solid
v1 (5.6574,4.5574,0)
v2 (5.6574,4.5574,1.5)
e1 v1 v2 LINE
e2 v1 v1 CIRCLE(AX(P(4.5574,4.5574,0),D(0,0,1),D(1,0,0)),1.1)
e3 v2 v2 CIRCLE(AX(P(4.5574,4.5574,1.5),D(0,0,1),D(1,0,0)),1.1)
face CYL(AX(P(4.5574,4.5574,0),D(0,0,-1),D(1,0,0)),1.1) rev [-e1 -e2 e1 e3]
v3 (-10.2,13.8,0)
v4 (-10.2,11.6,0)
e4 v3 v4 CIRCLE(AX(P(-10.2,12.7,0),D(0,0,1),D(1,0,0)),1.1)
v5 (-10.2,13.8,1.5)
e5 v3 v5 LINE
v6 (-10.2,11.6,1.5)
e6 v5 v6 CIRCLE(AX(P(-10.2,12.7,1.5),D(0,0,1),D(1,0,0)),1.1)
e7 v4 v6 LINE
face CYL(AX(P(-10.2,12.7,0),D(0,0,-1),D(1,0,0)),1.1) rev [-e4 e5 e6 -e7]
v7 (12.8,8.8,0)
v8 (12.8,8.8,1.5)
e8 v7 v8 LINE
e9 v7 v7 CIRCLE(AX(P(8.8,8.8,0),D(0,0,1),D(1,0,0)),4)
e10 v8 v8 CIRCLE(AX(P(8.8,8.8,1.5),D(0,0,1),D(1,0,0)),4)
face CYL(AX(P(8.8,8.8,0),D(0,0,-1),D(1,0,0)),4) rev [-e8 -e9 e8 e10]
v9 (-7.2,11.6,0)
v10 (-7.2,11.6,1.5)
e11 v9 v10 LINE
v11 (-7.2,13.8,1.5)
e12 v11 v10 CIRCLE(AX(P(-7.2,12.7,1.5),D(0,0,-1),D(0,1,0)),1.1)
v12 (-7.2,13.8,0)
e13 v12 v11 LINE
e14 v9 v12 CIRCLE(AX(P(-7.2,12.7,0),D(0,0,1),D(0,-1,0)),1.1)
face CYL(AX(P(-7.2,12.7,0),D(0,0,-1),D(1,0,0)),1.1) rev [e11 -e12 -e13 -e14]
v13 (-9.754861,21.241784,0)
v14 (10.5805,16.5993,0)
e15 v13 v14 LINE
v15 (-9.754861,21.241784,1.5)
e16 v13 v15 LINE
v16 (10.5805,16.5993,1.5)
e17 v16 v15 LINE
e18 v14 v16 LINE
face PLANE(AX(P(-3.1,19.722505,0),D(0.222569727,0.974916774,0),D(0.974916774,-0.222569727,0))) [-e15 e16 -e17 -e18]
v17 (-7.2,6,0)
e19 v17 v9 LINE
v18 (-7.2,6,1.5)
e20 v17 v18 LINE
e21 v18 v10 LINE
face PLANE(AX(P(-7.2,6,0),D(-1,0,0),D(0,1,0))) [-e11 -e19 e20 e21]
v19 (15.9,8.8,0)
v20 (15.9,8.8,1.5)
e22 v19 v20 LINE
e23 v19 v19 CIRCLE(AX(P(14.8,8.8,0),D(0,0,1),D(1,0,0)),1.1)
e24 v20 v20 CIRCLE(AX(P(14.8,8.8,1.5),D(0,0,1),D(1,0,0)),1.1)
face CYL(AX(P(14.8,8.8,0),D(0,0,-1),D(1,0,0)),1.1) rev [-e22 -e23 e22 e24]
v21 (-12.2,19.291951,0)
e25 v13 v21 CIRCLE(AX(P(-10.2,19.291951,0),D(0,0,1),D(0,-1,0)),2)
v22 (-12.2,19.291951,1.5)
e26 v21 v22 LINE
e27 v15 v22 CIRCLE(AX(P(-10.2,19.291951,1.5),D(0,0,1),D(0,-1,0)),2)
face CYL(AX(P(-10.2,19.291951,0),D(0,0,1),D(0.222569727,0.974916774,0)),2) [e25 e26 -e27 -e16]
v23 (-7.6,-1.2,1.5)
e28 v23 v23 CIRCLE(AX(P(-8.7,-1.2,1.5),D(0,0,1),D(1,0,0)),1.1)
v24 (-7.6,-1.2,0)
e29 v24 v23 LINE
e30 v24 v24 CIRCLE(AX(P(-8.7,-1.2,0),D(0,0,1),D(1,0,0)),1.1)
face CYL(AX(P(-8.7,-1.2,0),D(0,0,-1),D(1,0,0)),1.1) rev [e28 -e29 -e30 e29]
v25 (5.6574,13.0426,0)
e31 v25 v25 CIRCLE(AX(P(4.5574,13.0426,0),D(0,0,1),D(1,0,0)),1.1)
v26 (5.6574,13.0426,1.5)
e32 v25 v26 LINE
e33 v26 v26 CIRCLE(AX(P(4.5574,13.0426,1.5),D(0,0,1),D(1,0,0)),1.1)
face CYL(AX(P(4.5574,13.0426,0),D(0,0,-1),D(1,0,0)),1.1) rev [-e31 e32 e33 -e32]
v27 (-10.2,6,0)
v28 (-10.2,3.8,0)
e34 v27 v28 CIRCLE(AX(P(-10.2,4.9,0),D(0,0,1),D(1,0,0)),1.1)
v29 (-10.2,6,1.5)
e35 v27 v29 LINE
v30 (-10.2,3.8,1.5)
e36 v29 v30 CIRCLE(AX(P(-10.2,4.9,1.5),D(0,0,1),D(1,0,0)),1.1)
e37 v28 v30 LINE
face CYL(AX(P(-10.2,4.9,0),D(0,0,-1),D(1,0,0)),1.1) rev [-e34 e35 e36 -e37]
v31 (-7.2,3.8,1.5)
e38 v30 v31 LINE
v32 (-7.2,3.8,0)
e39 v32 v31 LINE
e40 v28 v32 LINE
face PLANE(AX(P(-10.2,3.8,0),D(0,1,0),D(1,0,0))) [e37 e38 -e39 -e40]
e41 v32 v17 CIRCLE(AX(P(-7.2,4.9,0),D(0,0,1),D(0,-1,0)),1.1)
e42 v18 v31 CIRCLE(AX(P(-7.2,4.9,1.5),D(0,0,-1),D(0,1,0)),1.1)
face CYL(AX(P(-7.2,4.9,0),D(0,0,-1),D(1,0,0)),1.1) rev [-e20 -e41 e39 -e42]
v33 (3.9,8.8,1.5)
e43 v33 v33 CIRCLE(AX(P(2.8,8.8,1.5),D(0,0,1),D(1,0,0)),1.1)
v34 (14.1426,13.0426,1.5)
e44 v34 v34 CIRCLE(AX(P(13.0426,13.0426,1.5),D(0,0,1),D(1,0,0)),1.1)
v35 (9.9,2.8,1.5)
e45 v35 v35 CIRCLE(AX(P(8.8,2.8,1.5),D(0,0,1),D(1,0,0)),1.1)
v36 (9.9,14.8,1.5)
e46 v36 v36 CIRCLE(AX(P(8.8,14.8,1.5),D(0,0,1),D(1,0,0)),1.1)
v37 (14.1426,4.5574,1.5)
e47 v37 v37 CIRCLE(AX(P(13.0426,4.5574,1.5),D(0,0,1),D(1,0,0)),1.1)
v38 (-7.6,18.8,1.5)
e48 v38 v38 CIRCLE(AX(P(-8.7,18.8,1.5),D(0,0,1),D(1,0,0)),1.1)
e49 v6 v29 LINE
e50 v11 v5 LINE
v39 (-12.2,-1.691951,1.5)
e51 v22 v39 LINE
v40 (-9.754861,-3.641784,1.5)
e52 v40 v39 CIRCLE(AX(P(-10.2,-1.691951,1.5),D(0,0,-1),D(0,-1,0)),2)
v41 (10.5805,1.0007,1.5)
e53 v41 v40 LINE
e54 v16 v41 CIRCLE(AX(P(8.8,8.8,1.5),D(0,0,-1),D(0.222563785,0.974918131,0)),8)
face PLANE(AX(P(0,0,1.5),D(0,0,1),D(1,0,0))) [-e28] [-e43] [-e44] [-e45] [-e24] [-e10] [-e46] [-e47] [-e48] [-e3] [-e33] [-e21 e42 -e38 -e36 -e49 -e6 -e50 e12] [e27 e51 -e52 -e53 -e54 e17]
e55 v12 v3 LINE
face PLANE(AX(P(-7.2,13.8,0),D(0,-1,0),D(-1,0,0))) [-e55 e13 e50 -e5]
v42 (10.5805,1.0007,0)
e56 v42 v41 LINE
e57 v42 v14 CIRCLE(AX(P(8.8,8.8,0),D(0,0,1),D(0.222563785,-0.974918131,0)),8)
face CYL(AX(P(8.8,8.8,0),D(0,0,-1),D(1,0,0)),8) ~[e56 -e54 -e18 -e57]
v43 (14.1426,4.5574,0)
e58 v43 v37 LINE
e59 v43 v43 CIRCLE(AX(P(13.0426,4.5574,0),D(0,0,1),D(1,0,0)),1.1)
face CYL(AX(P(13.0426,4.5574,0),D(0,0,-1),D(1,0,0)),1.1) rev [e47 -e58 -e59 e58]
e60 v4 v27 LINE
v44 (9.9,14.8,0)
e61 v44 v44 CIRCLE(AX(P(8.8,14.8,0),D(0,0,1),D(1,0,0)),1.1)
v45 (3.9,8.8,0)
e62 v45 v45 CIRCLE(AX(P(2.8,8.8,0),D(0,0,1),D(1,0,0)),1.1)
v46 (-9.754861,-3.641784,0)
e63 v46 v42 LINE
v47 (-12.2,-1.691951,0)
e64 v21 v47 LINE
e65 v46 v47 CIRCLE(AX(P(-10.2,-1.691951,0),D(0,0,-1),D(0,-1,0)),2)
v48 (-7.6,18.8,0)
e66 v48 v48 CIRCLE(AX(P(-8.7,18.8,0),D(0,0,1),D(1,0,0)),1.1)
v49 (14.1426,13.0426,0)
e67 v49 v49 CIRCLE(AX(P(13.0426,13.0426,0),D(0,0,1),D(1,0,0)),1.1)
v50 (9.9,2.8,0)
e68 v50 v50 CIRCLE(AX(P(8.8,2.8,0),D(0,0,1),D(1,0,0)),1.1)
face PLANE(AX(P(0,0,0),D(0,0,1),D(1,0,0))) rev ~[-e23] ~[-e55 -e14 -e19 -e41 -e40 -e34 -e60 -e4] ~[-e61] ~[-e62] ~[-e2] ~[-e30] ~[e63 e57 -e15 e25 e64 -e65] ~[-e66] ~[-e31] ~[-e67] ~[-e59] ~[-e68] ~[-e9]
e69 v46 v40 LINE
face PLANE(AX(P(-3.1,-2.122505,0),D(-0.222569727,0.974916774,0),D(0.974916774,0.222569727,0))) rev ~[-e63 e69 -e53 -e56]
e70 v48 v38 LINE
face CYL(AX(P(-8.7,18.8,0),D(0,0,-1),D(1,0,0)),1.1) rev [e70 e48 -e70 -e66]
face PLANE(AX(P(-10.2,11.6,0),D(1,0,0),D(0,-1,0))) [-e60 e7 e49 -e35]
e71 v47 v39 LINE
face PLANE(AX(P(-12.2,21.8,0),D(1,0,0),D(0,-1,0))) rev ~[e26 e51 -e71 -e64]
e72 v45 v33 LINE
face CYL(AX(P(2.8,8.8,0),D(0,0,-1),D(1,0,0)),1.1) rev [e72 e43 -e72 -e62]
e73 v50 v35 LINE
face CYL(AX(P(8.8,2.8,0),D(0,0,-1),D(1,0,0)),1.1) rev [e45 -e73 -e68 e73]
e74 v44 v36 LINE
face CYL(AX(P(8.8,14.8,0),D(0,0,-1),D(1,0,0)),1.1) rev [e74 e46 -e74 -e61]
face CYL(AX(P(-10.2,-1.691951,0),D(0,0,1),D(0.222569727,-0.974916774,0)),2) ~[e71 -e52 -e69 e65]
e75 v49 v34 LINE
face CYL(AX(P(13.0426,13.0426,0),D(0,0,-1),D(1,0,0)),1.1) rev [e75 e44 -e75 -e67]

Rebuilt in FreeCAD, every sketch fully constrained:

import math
import FreeCAD as App
import Part
import Sketcher
from FreeCAD import Vector


def edges_at(feature, points):
    """Names of the edges that pass closest to the given points."""
    edges = feature.Shape.Edges
    near = lambda p: min(range(len(edges)), key=lambda i: edges[i].distToShape(Part.Vertex(*p))[0])
    return sorted({f"Edge{near(p) + 1}" for p in points})

doc = App.newDocument("Part")
params = doc.addObject("Spreadsheet::Sheet", "Params")
for row, (alias, value) in enumerate([
    ("sketch1_diameter", "8 mm"),
    ("sketch1_radius", "8 mm"),
    ("sketch1_diameter2", "2.2 mm"),
    ("sketch1_width", "3 mm"),
    ("pad1_length", "1.5 mm"),
    ("fillet_radius", "2 mm"),
], start=1):
    params.set(f"A{row}", alias)
    params.set(f"B{row}", "=" + value)
    params.setAlias(f"B{row}", alias)

body = doc.addObject("PartDesign::Body", "Body")

# Sketch on XY plane
sketch1 = body.newObject("Sketcher::SketchObject", "Sketch")
sketch1.AttachmentSupport = (doc.getObject("XY_Plane"), [""])
sketch1.MapMode = "FlatFace"
sketch1.addGeometry([
    Part.ArcOfCircle(Part.Circle(Vector(8.8, 8.8, 0), Vector(0, 0, 1), 8), math.radians(-77), math.radians(77)),  # 0
    Part.LineSegment(Vector(10.6, 16.6, 0), Vector(-12.2, 21.8, 0)),  # 1
    Part.LineSegment(Vector(-12.2, 21.8, 0), Vector(-12.2, -4.2, 0)),  # 2
    Part.LineSegment(Vector(-12.2, -4.2, 0), Vector(10.6, 1, 0)),  # 3
    Part.Circle(Vector(4.6, 4.6, 0), Vector(0, 0, 1), 1.1),  # 4
    Part.Circle(Vector(8.8, 2.8, 0), Vector(0, 0, 1), 1.1),  # 5
    Part.Circle(Vector(13, 4.6, 0), Vector(0, 0, 1), 1.1),  # 6
    Part.Circle(Vector(2.8, 8.8, 0), Vector(0, 0, 1), 1.1),  # 7
    Part.Circle(Vector(8.8, 8.8, 0), Vector(0, 0, 1), 4),  # 8
    Part.Circle(Vector(4.6, 13, 0), Vector(0, 0, 1), 1.1),  # 9
    Part.Circle(Vector(8.8, 14.8, 0), Vector(0, 0, 1), 1.1),  # 10
    Part.Circle(Vector(14.8, 8.8, 0), Vector(0, 0, 1), 1.1),  # 11
    Part.Circle(Vector(13, 13, 0), Vector(0, 0, 1), 1.1),  # 12
    Part.Circle(Vector(-8.7, 18.8, 0), Vector(0, 0, 1), 1.1),  # 13
    Part.Circle(Vector(-8.7, -1.2, 0), Vector(0, 0, 1), 1.1),  # 14
    Part.LineSegment(Vector(-7.2, 3.8, 0), Vector(-10.2, 3.8, 0)),  # 15
    Part.ArcOfCircle(Part.Circle(Vector(-10.2, 4.9, 0), Vector(0, 0, 1), 1.1), math.radians(90), math.radians(270)),  # 16
    Part.LineSegment(Vector(-10.2, 6, 0), Vector(-10.2, 11.6, 0)),  # 17
    Part.ArcOfCircle(Part.Circle(Vector(-10.2, 12.7, 0), Vector(0, 0, 1), 1.1), math.radians(90), math.radians(270)),  # 18
    Part.LineSegment(Vector(-10.2, 13.8, 0), Vector(-7.2, 13.8, 0)),  # 19
    Part.ArcOfCircle(Part.Circle(Vector(-7.2, 12.7, 0), Vector(0, 0, 1), 1.1), math.radians(-90), math.radians(90)),  # 20
    Part.LineSegment(Vector(-7.2, 11.6, 0), Vector(-7.2, 6, 0)),  # 21
    Part.ArcOfCircle(Part.Circle(Vector(-7.2, 4.9, 0), Vector(0, 0, 1), 1.1), math.radians(-90), math.radians(90)),  # 22
], False)
sketch1.addConstraint([
    Sketcher.Constraint("Tangent", 0, 2, 1, 1),
    Sketcher.Constraint("Coincident", 1, 2, 2, 1),
    Sketcher.Constraint("Coincident", 2, 2, 3, 1),
    Sketcher.Constraint("Tangent", 3, 2, 0, 1),
    Sketcher.Constraint("Tangent", 15, 2, 16, 2),
    Sketcher.Constraint("Coincident", 16, 1, 17, 1),
    Sketcher.Constraint("Coincident", 17, 2, 18, 2),
    Sketcher.Constraint("Tangent", 18, 1, 19, 1),
    Sketcher.Constraint("Tangent", 19, 2, 20, 2),
    Sketcher.Constraint("Coincident", 20, 1, 21, 1),
    Sketcher.Constraint("Coincident", 21, 2, 22, 2),
    Sketcher.Constraint("Tangent", 22, 1, 15, 1),
    Sketcher.Constraint("Vertical", 2),
    Sketcher.Constraint("Horizontal", 15),
    Sketcher.Constraint("Vertical", 17),
    Sketcher.Constraint("Horizontal", 19),
    Sketcher.Constraint("Vertical", 21),
    Sketcher.Constraint("Coincident", 8, 3, 0, 3),
    Sketcher.Constraint("Equal", 4, 5),
    Sketcher.Constraint("Equal", 5, 6),
    Sketcher.Constraint("Equal", 6, 7),
    Sketcher.Constraint("Equal", 7, 9),
    Sketcher.Constraint("Equal", 9, 10),
    Sketcher.Constraint("Equal", 10, 11),
    Sketcher.Constraint("Equal", 11, 12),
    Sketcher.Constraint("Equal", 12, 13),
    Sketcher.Constraint("Equal", 13, 14),
    Sketcher.Constraint("Equal", 14, 16),
    Sketcher.Constraint("Equal", 16, 18),
    Sketcher.Constraint("Equal", 18, 20),
    Sketcher.Constraint("Equal", 20, 22),
    Sketcher.Constraint("Horizontal", 4, 3, 6, 3),
    Sketcher.Constraint("Horizontal", 0, 3, 7, 3),
    Sketcher.Constraint("Horizontal", 8, 3, 11, 3),
    Sketcher.Constraint("Horizontal", 9, 3, 12, 3),
    Sketcher.Constraint("Vertical", 0, 3, 5, 3),
    Sketcher.Constraint("Vertical", 4, 3, 9, 3),
    Sketcher.Constraint("Vertical", 8, 3, 10, 3),
    Sketcher.Constraint("Vertical", 6, 3, 12, 3),
    Sketcher.Constraint("Vertical", 13, 3, 14, 3),
    Sketcher.Constraint("Vertical", 16, 3, 18, 3),
    Sketcher.Constraint("Vertical", 20, 3, 22, 3),
    Sketcher.Constraint("Vertical", 0, 2, 3, 2),
    Sketcher.Constraint("Vertical", 15, 2, 16, 1),
    Sketcher.Constraint("Vertical", 19, 2, 20, 1),
    Sketcher.Constraint("Diameter", 8, 8.0),
    Sketcher.Constraint("Radius", 0, 8.0),
    Sketcher.Constraint("Diameter", 4, 2.2),
    Sketcher.Constraint("DistanceX", 15, 2, 15, 1, 3.0),
    Sketcher.Constraint("DistanceY", 7, 3, 13, 3, 10.0),
    Sketcher.Constraint("DistanceY", 14, 3, 7, 3, 10.0),
    Sketcher.Constraint("DistanceX", 20, 3, 7, 3, 10.0),
    Sketcher.Constraint("DistanceY", 13, 3, 1, 2, 3.0),
    Sketcher.Constraint("DistanceX", 1, 2, 18, 3, 2.0),
    Sketcher.Constraint("DistanceY", 14, 3, 15, 2, 5.0),
    Sketcher.Constraint("DistanceY", 18, 1, 13, 3, 5.0),
    Sketcher.Constraint("DistanceY", -1, 1, 16, 1, 6.0),
    Sketcher.Constraint("DistanceY", 5, 3, 0, 3, 6.0),
    Sketcher.Constraint("DistanceX", 7, 3, 0, 3, 6.0),
    Sketcher.Constraint("DistanceY", 0, 3, 10, 3, 6.0),
    Sketcher.Constraint("DistanceX", 0, 3, 11, 3, 6.0),
    Sketcher.Constraint("DistanceX", -1, 1, 0, 3, 8.8),
    Sketcher.Constraint("DistanceX", 13, 3, -1, 1, 8.7),
    Sketcher.Constraint("DistanceX", 0, 2, 12, 3, 2.462),
    Sketcher.Constraint("DistanceX", 9, 3, 0, 2, 6.023),
    Sketcher.Constraint("DistanceY", -1, 1, 4, 3, 4.5574),
    Sketcher.Constraint("DistanceY", -1, 1, 9, 3, 13.0426),
])
sketch1.setExpression("Constraints[45]", "Params.sketch1_diameter")
sketch1.setExpression("Constraints[46]", "Params.sketch1_radius")
sketch1.setExpression("Constraints[47]", "Params.sketch1_diameter2")
sketch1.setExpression("Constraints[48]", "Params.sketch1_width")
pad1 = body.newObject("PartDesign::Pad", "Pad")
pad1.Profile = sketch1
pad1.setExpression("Length", "Params.pad1_length")
doc.recompute()

fillet = body.newObject("PartDesign::Fillet", "Fillet")
fillet.Base = (pad1, edges_at(pad1, [(-12.2, 21.8, 0.75), (-12.2, -4.2, 0.75)]))
fillet.setExpression("Radius", "Params.fillet_radius")

doc.recompute()
